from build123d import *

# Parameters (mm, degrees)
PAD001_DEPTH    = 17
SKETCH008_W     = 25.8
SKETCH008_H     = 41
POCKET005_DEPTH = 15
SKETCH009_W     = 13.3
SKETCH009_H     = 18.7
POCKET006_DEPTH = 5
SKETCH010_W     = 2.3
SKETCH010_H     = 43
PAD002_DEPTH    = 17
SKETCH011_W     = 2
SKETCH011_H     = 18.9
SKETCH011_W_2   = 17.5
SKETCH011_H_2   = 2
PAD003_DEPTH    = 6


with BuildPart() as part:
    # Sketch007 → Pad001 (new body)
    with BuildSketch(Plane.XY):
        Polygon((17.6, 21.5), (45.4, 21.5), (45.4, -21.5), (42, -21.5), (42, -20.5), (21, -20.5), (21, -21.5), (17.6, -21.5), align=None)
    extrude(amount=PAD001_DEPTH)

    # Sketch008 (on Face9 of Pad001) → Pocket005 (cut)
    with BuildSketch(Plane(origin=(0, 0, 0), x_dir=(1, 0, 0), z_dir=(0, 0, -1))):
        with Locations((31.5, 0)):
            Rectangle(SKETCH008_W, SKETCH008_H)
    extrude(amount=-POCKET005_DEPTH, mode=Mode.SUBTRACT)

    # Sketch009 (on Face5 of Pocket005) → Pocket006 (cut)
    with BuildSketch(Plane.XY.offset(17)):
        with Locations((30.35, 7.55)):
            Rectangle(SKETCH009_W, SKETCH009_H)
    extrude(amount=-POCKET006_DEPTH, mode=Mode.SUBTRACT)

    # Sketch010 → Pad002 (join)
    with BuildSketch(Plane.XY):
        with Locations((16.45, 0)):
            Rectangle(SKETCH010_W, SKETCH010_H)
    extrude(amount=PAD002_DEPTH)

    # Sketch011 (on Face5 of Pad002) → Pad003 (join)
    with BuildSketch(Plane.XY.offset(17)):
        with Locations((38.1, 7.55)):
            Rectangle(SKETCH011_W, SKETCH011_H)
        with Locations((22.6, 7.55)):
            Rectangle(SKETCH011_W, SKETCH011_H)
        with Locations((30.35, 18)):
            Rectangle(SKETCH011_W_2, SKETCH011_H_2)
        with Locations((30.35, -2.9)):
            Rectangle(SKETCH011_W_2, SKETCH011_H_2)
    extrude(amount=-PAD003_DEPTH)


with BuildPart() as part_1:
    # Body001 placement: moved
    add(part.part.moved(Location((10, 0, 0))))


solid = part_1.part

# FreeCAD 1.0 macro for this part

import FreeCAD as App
import Part
import Sketcher
from FreeCAD import Vector


def add_polygon(sketch, points):
    """Adds a closed chain of lines whose ends are joined by coincident constraints."""
    first, n = sketch.GeometryCount, len(points)
    for a, b in zip(points, points[1:] + points[:1]):
        sketch.addGeometry(Part.LineSegment(App.Vector(*a, 0), App.Vector(*b, 0)), False)
    for i in range(n):
        sketch.addConstraint(Sketcher.Constraint("Coincident", first + i, 2, first + (i + 1) % n, 1))

doc = App.newDocument("Part")
params = doc.addObject("Spreadsheet::Sheet", "Params")
for row, (alias, value) in enumerate([
    ("sketch1_width", "21 mm"),
    ("sketch1_height", "43 mm"),
    ("sketch1_height2", "1 mm"),
    ("sketch1_width2", "27.8 mm"),
    ("pad1_length", "17 mm"),
    ("sketch2_height", "41 mm"),
    ("sketch2_width", "25.8 mm"),
    ("pocket1_length", "15 mm"),
    ("sketch3_width", "13.3 mm"),
    ("sketch3_height", "18.7 mm"),
    ("pocket2_length", "5 mm"),
    ("sketch4_height", "43 mm"),
    ("sketch4_width", "2.3 mm"),
    ("pad2_length", "17 mm"),
    ("sketch5_width", "17.5 mm"),
    ("sketch5_width2", "13.5 mm"),
    ("sketch5_height", "22.9 mm"),
    ("sketch5_height2", "18.9 mm"),
    ("pad3_length", "6 mm"),
], start=1):
    params.set(f"A{row}", alias)
    params.set(f"B{row}", "=" + value)
    params.setAlias(f"B{row}", alias)

body = doc.addObject("PartDesign::Body", "Body")

sketch1 = doc.addObject("Sketcher::SketchObject", "Sketch")
body.addObject(sketch1)
sketch1.AttachmentSupport = (doc.XY_Plane, [""])
sketch1.MapMode = "FlatFace"
add_polygon(sketch1, [(45.4, 21.5), (17.6, 21.5), (17.6, -21.5), (21, -21.5), (21, -20.5), (42, -20.5), (42, -21.5), (45.4, -21.5)])
sketch1.addConstraint([
    Sketcher.Constraint("Horizontal", 0),
    Sketcher.Constraint("Vertical", 1),
    Sketcher.Constraint("Horizontal", 2),
    Sketcher.Constraint("Vertical", 3),
    Sketcher.Constraint("Horizontal", 4),
    Sketcher.Constraint("Vertical", 5),
    Sketcher.Constraint("Horizontal", 6),
    Sketcher.Constraint("Vertical", 7),
    Sketcher.Constraint("Horizontal", 2, 2, 5, 2),
    Sketcher.Constraint("Equal", 2, 6),
    Sketcher.Constraint("DistanceX", 4, 1, 4, 2, 21.0),
    Sketcher.Constraint("DistanceY", 1, 2, 1, 1, 43.0),
    Sketcher.Constraint("DistanceY", 3, 1, 3, 2, 1.0),
    Sketcher.Constraint("DistanceX", 0, 2, 0, 1, 27.8),
    Sketcher.Constraint("DistanceX", -1, 1, 2, 2, 21.0),
    Sketcher.Constraint("DistanceY", -1, 1, 0, 2, 21.5),
])
sketch1.setExpression("Constraints[18]", "Params.sketch1_width")
sketch1.setExpression("Constraints[19]", "Params.sketch1_height")
sketch1.setExpression("Constraints[20]", "Params.sketch1_height2")
sketch1.setExpression("Constraints[21]", "Params.sketch1_width2")
pad1 = doc.addObject("PartDesign::Pad", "Pad")
body.addObject(pad1)
pad1.Profile = sketch1
pad1.setExpression("Length", "Params.pad1_length")

sketch2 = doc.addObject("Sketcher::SketchObject", "Sketch001")
body.addObject(sketch2)
sketch2.AttachmentSupport = (doc.XY_Plane, [""])
sketch2.MapMode = "FlatFace"
add_polygon(sketch2, [(19, -20), (19, 20), (44, 20), (44, -20)])
sketch2.addConstraint([
    Sketcher.Constraint("Vertical", 0),
    Sketcher.Constraint("Horizontal", 1),
    Sketcher.Constraint("Vertical", 2),
    Sketcher.Constraint("Horizontal", 3),
    Sketcher.Constraint("DistanceY", 0, 1, 0, 2, 41.0),
    Sketcher.Constraint("DistanceX", 1, 1, 1, 2, 25.8),
    Sketcher.Constraint("DistanceX", -1, 1, 0, 2, 18.6),
    Sketcher.Constraint("DistanceY", -1, 1, 0, 2, 20.5),
])
sketch2.setExpression("Constraints[8]", "Params.sketch2_height")
sketch2.setExpression("Constraints[9]", "Params.sketch2_width")
pocket1 = doc.addObject("PartDesign::Pocket", "Pocket")
body.addObject(pocket1)
pocket1.Profile = sketch2
pocket1.setExpression("Length", "Params.pocket1_length")
pocket1.Reversed = True

sketch3 = doc.addObject("Sketcher::SketchObject", "Sketch002")
body.addObject(sketch3)
sketch3.AttachmentSupport = (doc.XY_Plane, [""])
sketch3.MapMode = "FlatFace"
sketch3.AttachmentOffset = App.Placement(Vector(0, 0, 17), App.Rotation())
add_polygon(sketch3, [(24, 17), (24, -2), (37, -2), (37, 17)])
sketch3.addConstraint([
    Sketcher.Constraint("Vertical", 0),
    Sketcher.Constraint("Horizontal", 1),
    Sketcher.Constraint("Vertical", 2),
    Sketcher.Constraint("Horizontal", 3),
    Sketcher.Constraint("DistanceX", 1, 1, 1, 2, 13.3),
    Sketcher.Constraint("DistanceY", 0, 2, 0, 1, 18.7),
    Sketcher.Constraint("DistanceX", -1, 1, 1, 2, 37.0),
    Sketcher.Constraint("DistanceY", 0, 2, -1, 1, 1.8),
])
sketch3.setExpression("Constraints[8]", "Params.sketch3_width")
sketch3.setExpression("Constraints[9]", "Params.sketch3_height")
pocket2 = doc.addObject("PartDesign::Pocket", "Pocket001")
body.addObject(pocket2)
pocket2.Profile = sketch3
pocket2.setExpression("Length", "Params.pocket2_length")

sketch4 = doc.addObject("Sketcher::SketchObject", "Sketch003")
body.addObject(sketch4)
sketch4.AttachmentSupport = (doc.XY_Plane, [""])
sketch4.MapMode = "FlatFace"
add_polygon(sketch4, [(15.3, 21.5), (15.3, -21.5), (17.6, -21.5), (17.6, 21.5)])
sketch4.addConstraint([
    Sketcher.Constraint("Vertical", 0),
    Sketcher.Constraint("Horizontal", 1),
    Sketcher.Constraint("Vertical", 2),
    Sketcher.Constraint("Horizontal", 3),
    Sketcher.Constraint("DistanceY", 0, 2, 0, 1, 43.0),
    Sketcher.Constraint("DistanceX", 1, 1, 1, 2, 2.3),
    Sketcher.Constraint("DistanceX", -1, 1, 0, 2, 15.3),
    Sketcher.Constraint("DistanceY", 0, 2, -1, 1, 21.5),
])
sketch4.setExpression("Constraints[8]", "Params.sketch4_height")
sketch4.setExpression("Constraints[9]", "Params.sketch4_width")
pad2 = doc.addObject("PartDesign::Pad", "Pad001")
body.addObject(pad2)
pad2.Profile = sketch4
pad2.setExpression("Length", "Params.pad2_length")

sketch5 = doc.addObject("Sketcher::SketchObject", "Sketch004")
body.addObject(sketch5)
sketch5.AttachmentSupport = (doc.XY_Plane, [""])
sketch5.MapMode = "FlatFace"
sketch5.AttachmentOffset = App.Placement(Vector(0, 0, 17), App.Rotation())
add_polygon(sketch5, [(39, 19), (22, 19), (22, -4), (39, -4)])
add_polygon(sketch5, [(37, 17), (37, -2), (24, -2), (24, 17)])
sketch5.addConstraint([
    Sketcher.Constraint("Horizontal", 0),
    Sketcher.Constraint("Vertical", 1),
    Sketcher.Constraint("Horizontal", 2),
    Sketcher.Constraint("Vertical", 3),
    Sketcher.Constraint("Vertical", 4),
    Sketcher.Constraint("Horizontal", 5),
    Sketcher.Constraint("Vertical", 6),
    Sketcher.Constraint("Horizontal", 7),
    Sketcher.Constraint("DistanceX", 0, 2, 0, 1, 17.5),
    Sketcher.Constraint("DistanceX", 5, 2, 5, 1, 13.5),
    Sketcher.Constraint("DistanceY", 1, 2, 1, 1, 22.9),
    Sketcher.Constraint("DistanceY", 4, 2, 4, 1, 18.9),
    Sketcher.Constraint("DistanceY", -1, 1, 0, 2, 19.0),
    Sketcher.Constraint("DistanceY", -1, 1, 6, 2, 17.0),
    Sketcher.Constraint("DistanceX", 4, 2, 2, 2, 2.0),
    Sketcher.Constraint("DistanceX", -1, 1, 0, 2, 21.6),
])
sketch5.setExpression("Constraints[16]", "Params.sketch5_width")
sketch5.setExpression("Constraints[17]", "Params.sketch5_width2")
sketch5.setExpression("Constraints[18]", "Params.sketch5_height")
sketch5.setExpression("Constraints[19]", "Params.sketch5_height2")
pad3 = doc.addObject("PartDesign::Pad", "Pad002")
body.addObject(pad3)
pad3.Profile = sketch5
pad3.setExpression("Length", "Params.pad3_length")
pad3.Reversed = True
body2 = doc.addObject("PartDesign::Body", "Body001")
doc.recompute()

body.Placement = App.Placement(Vector(10, 0, 0), App.Rotation(Vector(0, 0, 1), 0))
boolean = doc.addObject("PartDesign::Boolean", "Boolean")
body2.addObject(boolean)
boolean.Type = "Fuse"
boolean.addObjects([body])

doc.recompute()
